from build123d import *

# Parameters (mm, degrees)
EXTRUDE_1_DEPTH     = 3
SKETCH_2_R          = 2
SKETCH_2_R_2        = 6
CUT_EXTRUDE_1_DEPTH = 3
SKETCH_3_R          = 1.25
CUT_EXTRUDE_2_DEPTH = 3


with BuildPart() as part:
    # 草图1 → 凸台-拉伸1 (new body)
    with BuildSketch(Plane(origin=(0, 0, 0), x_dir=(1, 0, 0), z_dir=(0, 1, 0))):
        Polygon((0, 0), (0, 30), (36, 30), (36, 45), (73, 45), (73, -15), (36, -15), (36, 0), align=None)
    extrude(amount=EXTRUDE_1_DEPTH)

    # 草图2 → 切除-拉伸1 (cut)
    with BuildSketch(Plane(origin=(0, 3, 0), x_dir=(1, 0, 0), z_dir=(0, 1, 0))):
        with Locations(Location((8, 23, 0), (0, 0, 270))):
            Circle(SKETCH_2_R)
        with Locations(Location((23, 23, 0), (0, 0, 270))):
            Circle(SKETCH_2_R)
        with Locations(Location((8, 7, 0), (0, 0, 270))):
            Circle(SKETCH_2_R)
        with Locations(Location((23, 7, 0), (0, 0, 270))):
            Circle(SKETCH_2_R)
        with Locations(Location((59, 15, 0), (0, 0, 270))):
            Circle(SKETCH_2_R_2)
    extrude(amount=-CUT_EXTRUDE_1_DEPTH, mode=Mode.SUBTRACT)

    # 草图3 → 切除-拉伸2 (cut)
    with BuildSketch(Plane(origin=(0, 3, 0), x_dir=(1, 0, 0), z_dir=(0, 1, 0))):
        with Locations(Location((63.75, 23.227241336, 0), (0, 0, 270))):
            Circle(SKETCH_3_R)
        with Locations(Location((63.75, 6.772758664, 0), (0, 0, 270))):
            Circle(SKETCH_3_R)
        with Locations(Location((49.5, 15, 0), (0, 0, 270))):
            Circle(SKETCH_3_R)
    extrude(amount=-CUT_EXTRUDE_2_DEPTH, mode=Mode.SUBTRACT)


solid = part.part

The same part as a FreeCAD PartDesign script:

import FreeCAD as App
import Part
import Sketcher


def add_polygon(sketch, points):
    """Adds a closed chain of lines whose ends are joined by coincident constraints."""
    first, n = sketch.GeometryCount, len(points)
    for a, b in zip(points, points[1:] + points[:1]):
        sketch.addGeometry(Part.LineSegment(App.Vector(*a, 0), App.Vector(*b, 0)), False)
    for i in range(n):
        sketch.addConstraint(Sketcher.Constraint("Coincident", first + i, 2, first + (i + 1) % n, 1))

doc = App.newDocument("Part")
body = doc.addObject("PartDesign::Body", "Body")

# Sketch on XZ plane
sketch1 = body.newObject("Sketcher::SketchObject", "Sketch")
sketch1.AttachmentSupport = (doc.getObject("XZ_Plane"), [""])
sketch1.MapMode = "FlatFace"
add_polygon(sketch1, [(0, -30), (0, 0), (36, 0), (36, 15), (73, 15), (73, -45), (36, -45), (36, -30)])  # lines 0-7
sketch1.addConstraint([
    Sketcher.Constraint("Vertical", 0),
    Sketcher.Constraint("Horizontal", 1),
    Sketcher.Constraint("Vertical", 2),
    Sketcher.Constraint("Horizontal", 3),
    Sketcher.Constraint("Vertical", 4),
    Sketcher.Constraint("Horizontal", 5),
    Sketcher.Constraint("Vertical", 6),
    Sketcher.Constraint("Horizontal", 7),
    Sketcher.Constraint("Coincident", 0, 2, -1, 1),
    Sketcher.Constraint("Vertical", 2, 2, 5, 2),
    Sketcher.Constraint("Equal", 2, 6),
    Sketcher.Constraint("DistanceX", 1, 1, 1, 2, 36.0),
    Sketcher.Constraint("DistanceX", 3, 1, 3, 2, 37.0),
    Sketcher.Constraint("DistanceY", 0, 1, 0, 2, 30.0),
    Sketcher.Constraint("DistanceY", 2, 1, 2, 2, 15.0),
])
pad1 = body.newObject("PartDesign::Pad", "Pad")
pad1.Profile = sketch1
pad1.Length = 3
pad1.Reversed = True

# Sketch on XZ plane
sketch2 = body.newObject("Sketcher::SketchObject", "Sketch001")
sketch2.AttachmentSupport = (doc.getObject("XZ_Plane"), [""])
sketch2.MapMode = "FlatFace"
sketch2.AttachmentOffset = App.Placement(App.Vector(0, 0, -3), App.Rotation())
sketch2.addGeometry([
    Part.Circle(App.Vector(8, -23, 0), App.Vector(0, 0, 1), 2),  # 0
    Part.Circle(App.Vector(23, -23, 0), App.Vector(0, 0, 1), 2),  # 1
    Part.Circle(App.Vector(8, -7, 0), App.Vector(0, 0, 1), 2),  # 2
    Part.Circle(App.Vector(23, -7, 0), App.Vector(0, 0, 1), 2),  # 3
    Part.Circle(App.Vector(59, -15, 0), App.Vector(0, 0, 1), 6),  # 4
], False)
sketch2.addConstraint([
    Sketcher.Constraint("Equal", 0, 1),
    Sketcher.Constraint("Equal", 1, 2),
    Sketcher.Constraint("Equal", 2, 3),
    Sketcher.Constraint("Horizontal", 0, 3, 1, 3),
    Sketcher.Constraint("Horizontal", 2, 3, 3, 3),
    Sketcher.Constraint("Vertical", 0, 3, 2, 3),
    Sketcher.Constraint("Vertical", 1, 3, 3, 3),
    Sketcher.Constraint("Diameter", 0, 4.0),
    Sketcher.Constraint("Diameter", 4, 12.0),
    Sketcher.Constraint("DistanceX", -1, 1, 0, 3, 8.0),
    Sketcher.Constraint("DistanceY", 0, 3, -1, 1, 23.0),
    Sketcher.Constraint("DistanceX", -1, 1, 1, 3, 23.0),
    Sketcher.Constraint("DistanceY", 2, 3, -1, 1, 7.0),
    Sketcher.Constraint("DistanceX", -1, 1, 4, 3, 59.0),
    Sketcher.Constraint("DistanceY", 4, 3, -1, 1, 15.0),
])
pocket1 = body.newObject("PartDesign::Pocket", "Pocket")
pocket1.Profile = sketch2
pocket1.Length = 3
pocket1.Reversed = True

# Sketch on XZ plane
sketch3 = body.newObject("Sketcher::SketchObject", "Sketch002")
sketch3.AttachmentSupport = (doc.getObject("XZ_Plane"), [""])
sketch3.MapMode = "FlatFace"
sketch3.AttachmentOffset = App.Placement(App.Vector(0, 0, -3), App.Rotation())
sketch3.addGeometry([
    Part.Circle(App.Vector(63.8, -23.2, 0), App.Vector(0, 0, 1), 1.2),
    Part.Circle(App.Vector(63.8, -6.8, 0), App.Vector(0, 0, 1), 1.2),
    Part.Circle(App.Vector(49.5, -15, 0), App.Vector(0, 0, 1), 1.2),
], False)
sketch3.addConstraint([
    Sketcher.Constraint("Equal", 0, 1),
    Sketcher.Constraint("Equal", 1, 2),
    Sketcher.Constraint("Vertical", 0, 3, 1, 3),
    Sketcher.Constraint("Diameter", 0, 2.5),
    Sketcher.Constraint("DistanceY", 2, 3, -1, 1, 15.0),
    Sketcher.Constraint("DistanceX", -1, 1, 2, 3, 49.5),
    Sketcher.Constraint("DistanceX", -1, 1, 0, 3, 63.75),
    Sketcher.Constraint("DistanceY", 0, 3, -1, 1, 23.227241),
    Sketcher.Constraint("DistanceY", 1, 3, -1, 1, 6.772759),
])
pocket2 = body.newObject("PartDesign::Pocket", "Pocket001")
pocket2.Profile = sketch3
pocket2.Length = 3
pocket2.Reversed = True

doc.recompute()
